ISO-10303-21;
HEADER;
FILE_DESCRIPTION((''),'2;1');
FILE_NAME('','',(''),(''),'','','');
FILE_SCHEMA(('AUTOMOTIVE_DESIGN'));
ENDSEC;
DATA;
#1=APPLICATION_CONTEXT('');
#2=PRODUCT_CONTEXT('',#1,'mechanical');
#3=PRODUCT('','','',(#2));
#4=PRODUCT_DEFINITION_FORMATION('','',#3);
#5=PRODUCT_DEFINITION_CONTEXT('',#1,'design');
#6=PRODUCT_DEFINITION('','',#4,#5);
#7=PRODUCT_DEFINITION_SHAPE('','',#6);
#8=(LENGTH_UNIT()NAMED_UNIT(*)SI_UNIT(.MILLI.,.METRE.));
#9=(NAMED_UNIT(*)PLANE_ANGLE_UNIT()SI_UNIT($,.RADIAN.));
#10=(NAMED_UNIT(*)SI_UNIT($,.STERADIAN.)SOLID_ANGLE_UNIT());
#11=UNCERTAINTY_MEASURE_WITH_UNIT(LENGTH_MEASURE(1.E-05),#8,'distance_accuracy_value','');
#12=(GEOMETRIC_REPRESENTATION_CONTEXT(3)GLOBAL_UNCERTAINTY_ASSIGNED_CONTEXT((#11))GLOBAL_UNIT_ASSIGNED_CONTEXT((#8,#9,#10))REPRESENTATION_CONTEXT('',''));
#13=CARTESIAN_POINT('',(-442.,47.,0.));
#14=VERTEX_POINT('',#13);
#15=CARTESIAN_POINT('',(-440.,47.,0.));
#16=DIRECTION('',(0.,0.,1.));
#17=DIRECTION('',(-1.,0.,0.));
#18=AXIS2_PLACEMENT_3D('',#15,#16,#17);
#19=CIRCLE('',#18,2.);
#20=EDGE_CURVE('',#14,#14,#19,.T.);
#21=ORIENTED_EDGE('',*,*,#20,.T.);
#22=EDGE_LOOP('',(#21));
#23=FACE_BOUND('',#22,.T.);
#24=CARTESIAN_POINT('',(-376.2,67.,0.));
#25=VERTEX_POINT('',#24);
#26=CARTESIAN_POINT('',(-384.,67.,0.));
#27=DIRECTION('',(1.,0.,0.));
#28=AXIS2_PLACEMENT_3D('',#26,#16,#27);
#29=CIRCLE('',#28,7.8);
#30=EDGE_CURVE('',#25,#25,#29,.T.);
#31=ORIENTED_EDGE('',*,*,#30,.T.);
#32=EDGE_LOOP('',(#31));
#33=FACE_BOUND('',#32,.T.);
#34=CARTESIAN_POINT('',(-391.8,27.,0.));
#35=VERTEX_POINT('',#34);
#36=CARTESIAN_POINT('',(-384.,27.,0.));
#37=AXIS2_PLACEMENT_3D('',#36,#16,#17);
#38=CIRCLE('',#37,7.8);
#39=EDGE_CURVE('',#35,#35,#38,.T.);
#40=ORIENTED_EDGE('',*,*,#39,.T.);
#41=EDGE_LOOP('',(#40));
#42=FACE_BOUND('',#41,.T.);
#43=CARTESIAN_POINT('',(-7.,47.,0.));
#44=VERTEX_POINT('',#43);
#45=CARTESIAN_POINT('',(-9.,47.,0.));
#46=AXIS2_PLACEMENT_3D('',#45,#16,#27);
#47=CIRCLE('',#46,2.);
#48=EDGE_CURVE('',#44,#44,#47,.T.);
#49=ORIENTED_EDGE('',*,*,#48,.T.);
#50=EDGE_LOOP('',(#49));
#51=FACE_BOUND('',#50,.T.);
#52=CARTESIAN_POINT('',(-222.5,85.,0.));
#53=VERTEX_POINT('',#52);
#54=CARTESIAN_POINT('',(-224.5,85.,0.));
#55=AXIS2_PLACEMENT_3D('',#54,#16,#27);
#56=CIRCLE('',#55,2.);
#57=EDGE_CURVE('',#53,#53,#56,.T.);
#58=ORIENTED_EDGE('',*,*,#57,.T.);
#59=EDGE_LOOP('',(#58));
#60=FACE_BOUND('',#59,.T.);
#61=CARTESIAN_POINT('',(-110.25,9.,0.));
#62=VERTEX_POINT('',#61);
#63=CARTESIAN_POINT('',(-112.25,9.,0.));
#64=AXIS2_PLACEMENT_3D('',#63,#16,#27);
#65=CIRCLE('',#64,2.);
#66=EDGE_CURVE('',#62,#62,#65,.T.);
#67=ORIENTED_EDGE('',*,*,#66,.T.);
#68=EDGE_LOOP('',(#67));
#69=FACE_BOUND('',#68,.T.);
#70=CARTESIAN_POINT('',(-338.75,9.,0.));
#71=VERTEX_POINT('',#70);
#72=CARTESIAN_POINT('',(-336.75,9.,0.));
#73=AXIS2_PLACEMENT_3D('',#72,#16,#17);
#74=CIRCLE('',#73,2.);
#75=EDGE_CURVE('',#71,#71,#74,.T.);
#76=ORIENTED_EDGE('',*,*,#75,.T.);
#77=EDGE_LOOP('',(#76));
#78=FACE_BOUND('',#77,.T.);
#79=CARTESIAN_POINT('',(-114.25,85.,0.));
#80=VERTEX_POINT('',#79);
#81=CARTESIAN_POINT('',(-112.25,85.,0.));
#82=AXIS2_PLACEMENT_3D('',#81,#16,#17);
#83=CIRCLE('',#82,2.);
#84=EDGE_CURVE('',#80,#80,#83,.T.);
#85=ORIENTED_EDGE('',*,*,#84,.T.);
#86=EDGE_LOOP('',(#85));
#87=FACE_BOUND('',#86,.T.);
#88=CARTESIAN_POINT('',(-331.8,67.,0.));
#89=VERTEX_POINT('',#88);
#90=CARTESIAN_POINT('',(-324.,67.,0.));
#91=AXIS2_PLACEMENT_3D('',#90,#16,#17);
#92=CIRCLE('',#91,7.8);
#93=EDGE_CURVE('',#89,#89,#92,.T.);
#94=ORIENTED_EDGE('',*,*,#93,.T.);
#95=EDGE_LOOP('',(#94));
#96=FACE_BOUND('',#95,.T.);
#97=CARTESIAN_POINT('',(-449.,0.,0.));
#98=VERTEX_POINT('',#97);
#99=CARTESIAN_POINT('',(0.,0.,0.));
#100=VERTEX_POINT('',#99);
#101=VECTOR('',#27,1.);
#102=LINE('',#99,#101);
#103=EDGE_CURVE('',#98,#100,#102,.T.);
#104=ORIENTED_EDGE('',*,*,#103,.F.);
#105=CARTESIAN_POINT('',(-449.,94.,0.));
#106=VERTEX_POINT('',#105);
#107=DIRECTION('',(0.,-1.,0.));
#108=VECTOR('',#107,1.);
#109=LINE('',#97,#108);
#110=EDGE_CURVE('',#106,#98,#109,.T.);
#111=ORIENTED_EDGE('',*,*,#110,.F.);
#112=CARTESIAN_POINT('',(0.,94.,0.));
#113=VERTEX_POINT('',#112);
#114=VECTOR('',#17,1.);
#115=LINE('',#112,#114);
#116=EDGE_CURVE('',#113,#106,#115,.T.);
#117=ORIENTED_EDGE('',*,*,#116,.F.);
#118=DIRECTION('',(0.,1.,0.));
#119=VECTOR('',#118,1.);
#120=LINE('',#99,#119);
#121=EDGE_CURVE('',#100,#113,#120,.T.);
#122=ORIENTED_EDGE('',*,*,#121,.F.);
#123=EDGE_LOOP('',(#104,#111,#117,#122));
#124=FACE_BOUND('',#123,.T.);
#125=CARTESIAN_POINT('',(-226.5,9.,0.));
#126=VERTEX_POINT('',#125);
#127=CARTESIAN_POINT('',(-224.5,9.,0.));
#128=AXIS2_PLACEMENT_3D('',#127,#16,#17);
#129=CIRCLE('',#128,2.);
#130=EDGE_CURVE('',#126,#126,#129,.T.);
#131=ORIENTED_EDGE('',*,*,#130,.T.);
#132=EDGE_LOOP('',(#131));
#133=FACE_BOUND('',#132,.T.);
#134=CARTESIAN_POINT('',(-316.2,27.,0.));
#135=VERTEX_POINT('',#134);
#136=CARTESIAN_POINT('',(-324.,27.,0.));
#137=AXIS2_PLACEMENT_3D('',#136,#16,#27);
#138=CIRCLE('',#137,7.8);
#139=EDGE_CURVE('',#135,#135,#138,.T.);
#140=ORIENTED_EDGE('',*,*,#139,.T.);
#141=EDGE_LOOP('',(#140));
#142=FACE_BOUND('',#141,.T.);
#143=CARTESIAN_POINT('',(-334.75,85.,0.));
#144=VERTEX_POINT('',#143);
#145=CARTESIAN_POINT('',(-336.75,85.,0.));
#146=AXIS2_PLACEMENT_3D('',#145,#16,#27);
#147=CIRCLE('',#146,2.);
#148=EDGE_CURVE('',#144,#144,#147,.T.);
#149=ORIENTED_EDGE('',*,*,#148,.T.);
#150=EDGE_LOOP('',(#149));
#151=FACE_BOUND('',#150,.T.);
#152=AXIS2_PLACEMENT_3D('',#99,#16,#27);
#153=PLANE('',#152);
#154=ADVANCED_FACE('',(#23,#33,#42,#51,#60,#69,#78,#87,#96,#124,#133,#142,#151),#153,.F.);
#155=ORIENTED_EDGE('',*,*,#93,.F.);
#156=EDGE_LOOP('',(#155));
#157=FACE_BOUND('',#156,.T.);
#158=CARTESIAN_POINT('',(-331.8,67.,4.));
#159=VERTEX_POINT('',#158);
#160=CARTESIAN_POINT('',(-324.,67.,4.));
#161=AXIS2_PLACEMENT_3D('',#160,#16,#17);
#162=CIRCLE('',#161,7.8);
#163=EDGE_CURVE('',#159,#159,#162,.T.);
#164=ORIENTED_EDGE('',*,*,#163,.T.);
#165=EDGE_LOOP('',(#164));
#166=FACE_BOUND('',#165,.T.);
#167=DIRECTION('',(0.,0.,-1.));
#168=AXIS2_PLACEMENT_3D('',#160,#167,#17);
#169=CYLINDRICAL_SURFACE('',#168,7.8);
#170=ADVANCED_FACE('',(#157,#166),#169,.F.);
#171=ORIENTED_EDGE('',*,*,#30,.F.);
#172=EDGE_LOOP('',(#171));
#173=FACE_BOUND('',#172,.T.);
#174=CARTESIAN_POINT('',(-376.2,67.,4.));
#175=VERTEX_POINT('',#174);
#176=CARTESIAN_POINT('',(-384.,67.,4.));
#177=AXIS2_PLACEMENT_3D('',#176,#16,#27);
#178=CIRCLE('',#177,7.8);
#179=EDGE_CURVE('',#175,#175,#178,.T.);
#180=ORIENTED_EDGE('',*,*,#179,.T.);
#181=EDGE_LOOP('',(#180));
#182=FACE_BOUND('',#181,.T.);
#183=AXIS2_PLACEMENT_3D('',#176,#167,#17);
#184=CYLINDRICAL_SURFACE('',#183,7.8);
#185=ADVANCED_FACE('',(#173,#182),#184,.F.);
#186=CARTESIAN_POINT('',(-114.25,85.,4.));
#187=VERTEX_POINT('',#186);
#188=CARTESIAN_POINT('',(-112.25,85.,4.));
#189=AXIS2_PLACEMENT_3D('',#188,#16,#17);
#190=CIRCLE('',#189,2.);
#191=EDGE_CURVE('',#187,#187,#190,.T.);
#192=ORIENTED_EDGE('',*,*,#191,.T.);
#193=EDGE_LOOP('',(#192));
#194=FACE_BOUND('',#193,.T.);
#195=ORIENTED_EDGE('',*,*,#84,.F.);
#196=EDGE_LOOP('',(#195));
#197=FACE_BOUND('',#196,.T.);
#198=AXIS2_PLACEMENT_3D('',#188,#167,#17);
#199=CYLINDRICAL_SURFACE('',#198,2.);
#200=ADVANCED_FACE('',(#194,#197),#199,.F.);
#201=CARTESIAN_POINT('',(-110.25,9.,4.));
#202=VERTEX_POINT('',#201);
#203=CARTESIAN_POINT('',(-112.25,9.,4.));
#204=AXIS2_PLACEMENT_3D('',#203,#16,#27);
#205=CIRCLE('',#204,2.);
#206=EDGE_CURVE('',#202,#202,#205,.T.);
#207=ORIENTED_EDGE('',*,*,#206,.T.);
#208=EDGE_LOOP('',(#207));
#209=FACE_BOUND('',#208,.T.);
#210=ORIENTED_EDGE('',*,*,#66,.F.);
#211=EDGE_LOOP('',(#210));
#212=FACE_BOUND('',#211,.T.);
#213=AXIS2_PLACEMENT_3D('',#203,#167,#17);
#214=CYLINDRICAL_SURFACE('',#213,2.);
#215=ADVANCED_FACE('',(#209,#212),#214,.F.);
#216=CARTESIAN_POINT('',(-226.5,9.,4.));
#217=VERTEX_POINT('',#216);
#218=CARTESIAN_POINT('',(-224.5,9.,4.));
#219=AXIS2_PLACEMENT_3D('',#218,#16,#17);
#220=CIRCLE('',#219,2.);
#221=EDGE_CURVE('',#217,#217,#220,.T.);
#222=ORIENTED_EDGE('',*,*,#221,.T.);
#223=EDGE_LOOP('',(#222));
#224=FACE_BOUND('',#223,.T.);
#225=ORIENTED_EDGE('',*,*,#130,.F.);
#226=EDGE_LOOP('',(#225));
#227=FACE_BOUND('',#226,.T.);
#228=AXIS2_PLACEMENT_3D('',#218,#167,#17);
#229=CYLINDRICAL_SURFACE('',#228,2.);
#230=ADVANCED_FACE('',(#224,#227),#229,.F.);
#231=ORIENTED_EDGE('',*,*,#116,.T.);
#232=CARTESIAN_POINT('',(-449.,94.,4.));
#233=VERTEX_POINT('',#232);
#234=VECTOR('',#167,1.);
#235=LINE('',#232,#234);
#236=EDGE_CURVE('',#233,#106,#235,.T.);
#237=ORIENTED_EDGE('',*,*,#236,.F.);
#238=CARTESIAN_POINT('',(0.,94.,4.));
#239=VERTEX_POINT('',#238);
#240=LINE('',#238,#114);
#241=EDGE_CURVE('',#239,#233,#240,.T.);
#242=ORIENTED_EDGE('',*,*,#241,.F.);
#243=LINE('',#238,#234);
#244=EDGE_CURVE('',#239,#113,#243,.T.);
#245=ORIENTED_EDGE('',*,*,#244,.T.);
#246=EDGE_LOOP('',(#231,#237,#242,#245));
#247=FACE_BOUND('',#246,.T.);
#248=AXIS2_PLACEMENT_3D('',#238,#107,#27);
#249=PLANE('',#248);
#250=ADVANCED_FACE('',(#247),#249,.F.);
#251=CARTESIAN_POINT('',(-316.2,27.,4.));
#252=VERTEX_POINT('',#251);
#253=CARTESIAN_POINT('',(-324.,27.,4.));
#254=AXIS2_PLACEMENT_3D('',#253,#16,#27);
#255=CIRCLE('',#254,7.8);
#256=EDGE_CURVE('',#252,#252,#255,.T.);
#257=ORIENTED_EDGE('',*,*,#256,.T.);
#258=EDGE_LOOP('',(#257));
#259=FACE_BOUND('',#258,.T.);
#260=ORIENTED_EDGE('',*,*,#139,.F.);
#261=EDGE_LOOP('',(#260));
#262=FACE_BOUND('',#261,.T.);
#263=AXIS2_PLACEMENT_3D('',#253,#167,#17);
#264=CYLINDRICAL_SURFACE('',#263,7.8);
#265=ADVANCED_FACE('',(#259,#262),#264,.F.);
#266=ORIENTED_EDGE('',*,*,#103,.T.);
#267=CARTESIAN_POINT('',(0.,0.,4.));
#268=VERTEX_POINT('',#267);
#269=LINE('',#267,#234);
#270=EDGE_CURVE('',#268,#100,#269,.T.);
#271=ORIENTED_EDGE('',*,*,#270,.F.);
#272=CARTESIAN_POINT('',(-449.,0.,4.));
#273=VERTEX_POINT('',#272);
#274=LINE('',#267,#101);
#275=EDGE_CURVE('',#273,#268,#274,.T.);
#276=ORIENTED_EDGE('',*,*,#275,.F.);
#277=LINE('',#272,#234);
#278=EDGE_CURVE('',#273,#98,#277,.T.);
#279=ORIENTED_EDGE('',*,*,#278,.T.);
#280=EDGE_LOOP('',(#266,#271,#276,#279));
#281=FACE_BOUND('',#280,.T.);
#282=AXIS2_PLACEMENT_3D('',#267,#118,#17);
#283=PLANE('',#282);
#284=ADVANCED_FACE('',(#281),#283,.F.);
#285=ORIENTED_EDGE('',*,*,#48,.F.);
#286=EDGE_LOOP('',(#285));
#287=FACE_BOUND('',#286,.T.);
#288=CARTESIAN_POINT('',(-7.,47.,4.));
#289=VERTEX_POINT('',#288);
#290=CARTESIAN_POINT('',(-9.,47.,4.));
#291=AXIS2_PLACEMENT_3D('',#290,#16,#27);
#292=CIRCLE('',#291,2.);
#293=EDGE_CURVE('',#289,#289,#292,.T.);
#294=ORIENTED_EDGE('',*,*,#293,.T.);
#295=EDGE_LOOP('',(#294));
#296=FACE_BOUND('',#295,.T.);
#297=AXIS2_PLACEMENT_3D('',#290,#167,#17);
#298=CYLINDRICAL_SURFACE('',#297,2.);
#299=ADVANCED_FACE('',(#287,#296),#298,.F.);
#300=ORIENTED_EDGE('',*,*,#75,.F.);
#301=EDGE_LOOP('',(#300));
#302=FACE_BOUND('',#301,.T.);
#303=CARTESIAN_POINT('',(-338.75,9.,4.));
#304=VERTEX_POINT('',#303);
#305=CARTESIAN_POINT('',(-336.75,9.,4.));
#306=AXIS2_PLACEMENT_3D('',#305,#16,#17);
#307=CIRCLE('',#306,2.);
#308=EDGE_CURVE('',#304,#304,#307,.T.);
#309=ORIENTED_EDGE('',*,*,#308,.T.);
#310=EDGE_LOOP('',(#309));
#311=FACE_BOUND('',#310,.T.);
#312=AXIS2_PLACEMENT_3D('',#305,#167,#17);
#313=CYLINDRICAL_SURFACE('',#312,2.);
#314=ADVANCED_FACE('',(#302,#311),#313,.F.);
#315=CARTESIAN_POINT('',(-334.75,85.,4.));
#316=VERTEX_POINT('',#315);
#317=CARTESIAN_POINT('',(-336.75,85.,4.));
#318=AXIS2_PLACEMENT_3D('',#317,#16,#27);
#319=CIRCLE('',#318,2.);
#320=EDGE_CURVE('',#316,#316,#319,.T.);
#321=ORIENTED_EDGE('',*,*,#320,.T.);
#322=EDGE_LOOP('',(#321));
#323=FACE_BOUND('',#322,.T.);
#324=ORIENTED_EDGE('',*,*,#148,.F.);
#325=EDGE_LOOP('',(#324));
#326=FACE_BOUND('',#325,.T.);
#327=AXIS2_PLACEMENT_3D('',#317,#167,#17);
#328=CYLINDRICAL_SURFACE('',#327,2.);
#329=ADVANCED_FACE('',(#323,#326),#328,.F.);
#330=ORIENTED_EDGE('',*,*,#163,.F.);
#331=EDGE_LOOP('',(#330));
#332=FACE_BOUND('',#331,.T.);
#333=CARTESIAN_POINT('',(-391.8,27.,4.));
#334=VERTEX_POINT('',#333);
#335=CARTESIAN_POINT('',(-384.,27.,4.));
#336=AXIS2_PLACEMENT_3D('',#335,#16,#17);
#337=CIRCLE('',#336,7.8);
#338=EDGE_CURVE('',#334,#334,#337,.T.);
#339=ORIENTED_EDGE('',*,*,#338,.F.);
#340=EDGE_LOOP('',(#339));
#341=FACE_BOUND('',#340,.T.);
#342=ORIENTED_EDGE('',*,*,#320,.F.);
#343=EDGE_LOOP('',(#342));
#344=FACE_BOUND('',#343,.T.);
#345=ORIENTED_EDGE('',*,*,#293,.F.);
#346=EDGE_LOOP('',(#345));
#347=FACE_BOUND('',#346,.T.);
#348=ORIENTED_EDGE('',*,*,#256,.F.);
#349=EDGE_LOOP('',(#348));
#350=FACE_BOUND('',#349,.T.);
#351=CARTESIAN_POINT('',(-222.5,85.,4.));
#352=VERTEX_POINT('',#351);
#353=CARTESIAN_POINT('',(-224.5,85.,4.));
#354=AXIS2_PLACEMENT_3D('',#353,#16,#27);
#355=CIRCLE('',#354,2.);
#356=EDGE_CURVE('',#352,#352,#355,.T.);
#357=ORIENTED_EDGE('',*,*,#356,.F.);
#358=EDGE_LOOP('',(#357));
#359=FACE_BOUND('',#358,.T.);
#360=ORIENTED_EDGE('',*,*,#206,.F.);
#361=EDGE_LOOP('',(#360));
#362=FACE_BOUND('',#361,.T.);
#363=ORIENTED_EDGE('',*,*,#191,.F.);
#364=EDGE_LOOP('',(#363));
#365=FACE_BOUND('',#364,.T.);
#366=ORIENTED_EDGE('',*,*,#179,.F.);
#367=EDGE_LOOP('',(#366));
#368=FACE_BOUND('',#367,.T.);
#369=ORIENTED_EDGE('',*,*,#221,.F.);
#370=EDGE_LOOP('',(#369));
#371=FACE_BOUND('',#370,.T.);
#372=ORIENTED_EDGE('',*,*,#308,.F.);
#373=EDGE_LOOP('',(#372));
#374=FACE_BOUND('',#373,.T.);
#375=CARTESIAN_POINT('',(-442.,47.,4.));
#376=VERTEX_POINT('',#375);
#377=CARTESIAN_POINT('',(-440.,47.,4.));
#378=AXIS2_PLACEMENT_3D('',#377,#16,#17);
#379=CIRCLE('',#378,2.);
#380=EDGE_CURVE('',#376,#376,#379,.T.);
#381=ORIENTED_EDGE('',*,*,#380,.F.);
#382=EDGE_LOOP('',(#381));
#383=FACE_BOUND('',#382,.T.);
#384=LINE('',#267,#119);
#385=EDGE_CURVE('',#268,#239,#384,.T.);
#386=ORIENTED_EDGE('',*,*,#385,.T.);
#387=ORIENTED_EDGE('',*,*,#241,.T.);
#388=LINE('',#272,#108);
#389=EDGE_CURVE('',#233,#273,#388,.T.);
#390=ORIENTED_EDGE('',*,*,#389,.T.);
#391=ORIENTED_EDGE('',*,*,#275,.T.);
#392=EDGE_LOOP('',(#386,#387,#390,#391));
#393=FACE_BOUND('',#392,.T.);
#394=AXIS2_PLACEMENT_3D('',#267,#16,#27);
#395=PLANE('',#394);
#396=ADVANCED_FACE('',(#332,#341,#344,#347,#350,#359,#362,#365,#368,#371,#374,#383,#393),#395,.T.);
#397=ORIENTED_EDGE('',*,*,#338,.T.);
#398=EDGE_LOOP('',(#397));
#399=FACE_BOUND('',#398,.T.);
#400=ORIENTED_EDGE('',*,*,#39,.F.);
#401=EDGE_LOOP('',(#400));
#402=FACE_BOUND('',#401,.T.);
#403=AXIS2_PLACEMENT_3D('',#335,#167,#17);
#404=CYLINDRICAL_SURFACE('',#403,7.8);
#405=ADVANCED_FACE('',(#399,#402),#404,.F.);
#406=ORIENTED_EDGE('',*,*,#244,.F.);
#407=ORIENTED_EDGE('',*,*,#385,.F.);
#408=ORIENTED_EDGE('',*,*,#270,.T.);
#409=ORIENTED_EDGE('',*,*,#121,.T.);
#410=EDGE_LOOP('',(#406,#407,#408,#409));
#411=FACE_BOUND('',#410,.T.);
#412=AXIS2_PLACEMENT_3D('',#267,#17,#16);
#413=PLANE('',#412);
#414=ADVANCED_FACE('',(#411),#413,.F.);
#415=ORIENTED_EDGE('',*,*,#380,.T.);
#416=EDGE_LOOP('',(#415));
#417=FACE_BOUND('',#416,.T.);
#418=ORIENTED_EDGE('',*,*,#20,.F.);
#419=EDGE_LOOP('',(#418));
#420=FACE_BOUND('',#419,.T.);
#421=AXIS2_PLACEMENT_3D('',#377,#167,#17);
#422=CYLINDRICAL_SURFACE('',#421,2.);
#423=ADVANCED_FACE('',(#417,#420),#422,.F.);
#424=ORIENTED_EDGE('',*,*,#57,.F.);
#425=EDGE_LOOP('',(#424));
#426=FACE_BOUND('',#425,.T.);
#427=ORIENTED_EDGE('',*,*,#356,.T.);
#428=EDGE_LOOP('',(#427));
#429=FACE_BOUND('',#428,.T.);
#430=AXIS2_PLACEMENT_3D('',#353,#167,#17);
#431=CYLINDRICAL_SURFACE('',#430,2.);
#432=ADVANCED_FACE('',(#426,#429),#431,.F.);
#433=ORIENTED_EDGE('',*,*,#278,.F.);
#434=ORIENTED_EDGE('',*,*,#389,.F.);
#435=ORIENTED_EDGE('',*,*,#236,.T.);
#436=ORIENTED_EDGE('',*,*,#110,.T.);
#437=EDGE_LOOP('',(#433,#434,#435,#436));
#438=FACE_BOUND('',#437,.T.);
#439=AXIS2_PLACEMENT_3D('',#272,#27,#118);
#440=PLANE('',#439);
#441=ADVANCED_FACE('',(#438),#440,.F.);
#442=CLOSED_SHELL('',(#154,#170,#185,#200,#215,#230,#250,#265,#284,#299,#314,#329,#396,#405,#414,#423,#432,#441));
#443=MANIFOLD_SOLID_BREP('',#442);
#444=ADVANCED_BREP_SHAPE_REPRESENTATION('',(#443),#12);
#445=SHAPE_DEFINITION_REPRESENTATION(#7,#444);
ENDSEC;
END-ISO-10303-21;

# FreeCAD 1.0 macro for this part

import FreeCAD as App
import Part
import Sketcher
Q = App.Units.Quantity

doc = App.newDocument("Part")
body = doc.addObject("PartDesign::Body", "Body")

sketch1 = body.newObject("Sketcher::SketchObject", "Sketch")
sketch1.AttachmentSupport = (doc.getObject("XY_Plane"), [""])
sketch1.MapMode = "FlatFace"
sketch1.addGeometry([
    Part.LineSegment(App.Vector(-449, 94, 0), App.Vector(-449, 0, 0)),
    Part.LineSegment(App.Vector(-449, 0, 0), App.Vector(0, 0, 0)),
    Part.LineSegment(App.Vector(0, 0, 0), App.Vector(0, 94, 0)),
    Part.LineSegment(App.Vector(0, 94, 0), App.Vector(-449, 94, 0)),
    Part.Circle(App.Vector(-336.8, 9, 0), App.Vector(0, 0, 1), 2),
    Part.Circle(App.Vector(-384, 27, 0), App.Vector(0, 0, 1), 7.8),
    Part.Circle(App.Vector(-324, 27, 0), App.Vector(0, 0, 1), 7.8),
    Part.Circle(App.Vector(-224.5, 9, 0), App.Vector(0, 0, 1), 2),
    Part.Circle(App.Vector(-112.2, 9, 0), App.Vector(0, 0, 1), 2),
    Part.Circle(App.Vector(-440, 47, 0), App.Vector(0, 0, 1), 2),
    Part.Circle(App.Vector(-384, 67, 0), App.Vector(0, 0, 1), 7.8),
    Part.Circle(App.Vector(-336.8, 85, 0), App.Vector(0, 0, 1), 2),
    Part.Circle(App.Vector(-324, 67, 0), App.Vector(0, 0, 1), 7.8),
    Part.Circle(App.Vector(-9, 47, 0), App.Vector(0, 0, 1), 2),
    Part.Circle(App.Vector(-224.5, 85, 0), App.Vector(0, 0, 1), 2),
    Part.Circle(App.Vector(-112.2, 85, 0), App.Vector(0, 0, 1), 2),
], False)
sketch1.addConstraint([
    Sketcher.Constraint("Coincident", 0, 2, 1, 1),
    Sketcher.Constraint("Coincident", 1, 2, 2, 1),
    Sketcher.Constraint("Coincident", 2, 2, 3, 1),
    Sketcher.Constraint("Coincident", 3, 2, 0, 1),
    Sketcher.Constraint("Vertical", 0),
    Sketcher.Constraint("Horizontal", 1),
    Sketcher.Constraint("Vertical", 2),
    Sketcher.Constraint("Horizontal", 3),
    Sketcher.Constraint("Coincident", 1, 2, -1, 1),
    Sketcher.Constraint("Equal", 5, 6),
    Sketcher.Constraint("Equal", 4, 7),
    Sketcher.Constraint("Equal", 7, 8),
    Sketcher.Constraint("Equal", 8, 9),
    Sketcher.Constraint("Equal", 6, 10),
    Sketcher.Constraint("Equal", 9, 11),
    Sketcher.Constraint("Equal", 10, 12),
    Sketcher.Constraint("Equal", 11, 13),
    Sketcher.Constraint("Equal", 13, 14),
    Sketcher.Constraint("Equal", 14, 15),
    Sketcher.Constraint("Horizontal", 5, 3, 6, 3),
    Sketcher.Constraint("Horizontal", 4, 3, 7, 3),
    Sketcher.Constraint("Horizontal", 7, 3, 8, 3),
    Sketcher.Constraint("Horizontal", 10, 3, 12, 3),
    Sketcher.Constraint("Horizontal", 9, 3, 13, 3),
    Sketcher.Constraint("Horizontal", 11, 3, 14, 3),
    Sketcher.Constraint("Horizontal", 14, 3, 15, 3),
    Sketcher.Constraint("Vertical", 5, 3, 10, 3),
    Sketcher.Constraint("Vertical", 4, 3, 11, 3),
    Sketcher.Constraint("Vertical", 6, 3, 12, 3),
    Sketcher.Constraint("Vertical", 7, 3, 14, 3),
    Sketcher.Constraint("Vertical", 8, 3, 15, 3),
    Sketcher.Constraint("Diameter", 4, Q("4 mm")),
    Sketcher.Constraint("Diameter", 5, Q("15.6 mm")),
    Sketcher.Constraint("DistanceX", 1, 1, 1, 2, Q("449 mm")),
    Sketcher.Constraint("DistanceY", 0, 2, 0, 1, Q("94 mm")),
    Sketcher.Constraint("DistanceY", -1, 1, 4, 3, Q("9 mm")),
    Sketcher.Constraint("DistanceX", 5, 3, -1, 1, Q("384 mm")),
    Sketcher.Constraint("DistanceY", -1, 1, 5, 3, Q("27 mm")),
    Sketcher.Constraint("DistanceX", 6, 3, -1, 1, Q("324 mm")),
    Sketcher.Constraint("DistanceX", 9, 3, -1, 1, Q("440 mm")),
    Sketcher.Constraint("DistanceY", -1, 1, 9, 3, Q("47 mm")),
    Sketcher.Constraint("DistanceY", -1, 1, 10, 3, Q("67 mm")),
    Sketcher.Constraint("DistanceY", -1, 1, 11, 3, Q("85 mm")),
    Sketcher.Constraint("DistanceX", 13, 3, -1, 1, Q("9 mm")),
    Sketcher.Constraint("DistanceX", 7, 3, -1, 1, Q("224.5 mm")),
    Sketcher.Constraint("DistanceX", 4, 3, 8, 3, Q("224.5 mm")),
    Sketcher.Constraint("DistanceX", 4, 3, -1, 1, Q("336.75 mm")),
])
pad1 = body.newObject("PartDesign::Pad", "Pad")
pad1.Profile = sketch1
pad1.Length = 4

doc.recompute()
